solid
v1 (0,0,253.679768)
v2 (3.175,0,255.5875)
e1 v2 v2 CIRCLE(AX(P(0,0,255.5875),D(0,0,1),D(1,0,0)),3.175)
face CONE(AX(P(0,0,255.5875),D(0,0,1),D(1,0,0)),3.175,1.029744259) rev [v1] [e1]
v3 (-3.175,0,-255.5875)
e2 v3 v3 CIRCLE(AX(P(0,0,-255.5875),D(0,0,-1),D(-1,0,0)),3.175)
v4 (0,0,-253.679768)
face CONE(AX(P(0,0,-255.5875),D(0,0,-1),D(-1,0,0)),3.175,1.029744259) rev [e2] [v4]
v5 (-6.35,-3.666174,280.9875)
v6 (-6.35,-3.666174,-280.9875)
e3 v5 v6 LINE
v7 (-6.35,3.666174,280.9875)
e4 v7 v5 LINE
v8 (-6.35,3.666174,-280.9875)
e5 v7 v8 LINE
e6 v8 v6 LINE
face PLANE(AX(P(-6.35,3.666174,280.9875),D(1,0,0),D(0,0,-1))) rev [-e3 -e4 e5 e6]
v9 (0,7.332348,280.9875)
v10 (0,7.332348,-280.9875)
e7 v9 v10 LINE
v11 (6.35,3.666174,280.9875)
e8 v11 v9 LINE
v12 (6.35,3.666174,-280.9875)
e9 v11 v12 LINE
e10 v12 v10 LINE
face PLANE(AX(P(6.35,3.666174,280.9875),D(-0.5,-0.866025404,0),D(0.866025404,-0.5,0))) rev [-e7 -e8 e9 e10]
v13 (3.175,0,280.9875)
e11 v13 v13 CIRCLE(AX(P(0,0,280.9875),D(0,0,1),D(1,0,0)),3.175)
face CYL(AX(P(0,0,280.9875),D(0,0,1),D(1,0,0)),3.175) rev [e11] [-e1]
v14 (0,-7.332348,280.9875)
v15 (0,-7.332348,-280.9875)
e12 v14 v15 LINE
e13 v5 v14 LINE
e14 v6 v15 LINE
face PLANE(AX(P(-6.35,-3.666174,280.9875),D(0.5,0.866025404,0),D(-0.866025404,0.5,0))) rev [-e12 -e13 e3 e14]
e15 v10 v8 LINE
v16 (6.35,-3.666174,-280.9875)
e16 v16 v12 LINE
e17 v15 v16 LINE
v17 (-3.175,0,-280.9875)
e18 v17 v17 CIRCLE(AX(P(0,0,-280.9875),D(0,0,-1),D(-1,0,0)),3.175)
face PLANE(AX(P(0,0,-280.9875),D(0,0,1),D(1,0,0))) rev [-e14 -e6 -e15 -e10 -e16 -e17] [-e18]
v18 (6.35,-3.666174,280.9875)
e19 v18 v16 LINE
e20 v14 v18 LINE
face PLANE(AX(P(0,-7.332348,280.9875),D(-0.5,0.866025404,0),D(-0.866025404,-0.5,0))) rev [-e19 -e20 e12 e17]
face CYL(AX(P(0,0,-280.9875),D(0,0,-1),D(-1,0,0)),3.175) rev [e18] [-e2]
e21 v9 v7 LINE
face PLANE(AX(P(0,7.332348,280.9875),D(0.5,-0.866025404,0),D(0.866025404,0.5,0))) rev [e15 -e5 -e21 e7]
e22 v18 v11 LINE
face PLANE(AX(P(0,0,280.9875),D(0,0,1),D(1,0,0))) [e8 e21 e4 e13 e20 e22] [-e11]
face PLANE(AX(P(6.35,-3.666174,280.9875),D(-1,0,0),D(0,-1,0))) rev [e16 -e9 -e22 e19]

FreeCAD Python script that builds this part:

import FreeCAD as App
import Part
import Sketcher
from FreeCAD import Vector
Q = App.Units.Quantity

doc = App.newDocument("Part")
body = doc.addObject("PartDesign::Body", "Body")

sketch1 = body.newObject("Sketcher::SketchObject", "Sketch")
sketch1.AttachmentSupport = (doc.getObject("XY_Plane"), [""])
sketch1.MapMode = "FlatFace"
sketch1.addGeometry(Part.LineSegment(Vector(-6.35, -3.666174, 0), Vector(0, -7.332348, 0)), False)
sketch1.addGeometry(Part.LineSegment(Vector(0, -7.332348, 0), Vector(6.35, -3.666174, 0)), False)
sketch1.addGeometry(Part.LineSegment(Vector(6.35, -3.666174, 0), Vector(6.35, 3.666174, 0)), False)
sketch1.addGeometry(Part.LineSegment(Vector(6.35, 3.666174, 0), Vector(0, 7.332348, 0)), False)
sketch1.addGeometry(Part.LineSegment(Vector(0, 7.332348, 0), Vector(-6.35, 3.666174, 0)), False)
sketch1.addGeometry(Part.LineSegment(Vector(-6.35, 3.666174, 0), Vector(-6.35, -3.666174, 0)), False)
sketch1.addConstraint(Sketcher.Constraint("Coincident", 0, 2, 1, 1))
sketch1.addConstraint(Sketcher.Constraint("Coincident", 1, 2, 2, 1))
sketch1.addConstraint(Sketcher.Constraint("Coincident", 2, 2, 3, 1))
sketch1.addConstraint(Sketcher.Constraint("Coincident", 3, 2, 4, 1))
sketch1.addConstraint(Sketcher.Constraint("Coincident", 4, 2, 5, 1))
sketch1.addConstraint(Sketcher.Constraint("Coincident", 5, 2, 0, 1))
sketch1.addConstraint(Sketcher.Constraint("Vertical", 2))
sketch1.addConstraint(Sketcher.Constraint("Vertical", 5))
sketch1.addConstraint(Sketcher.Constraint("Symmetric", 0, 2, 3, 2, -1, 1))
sketch1.addConstraint(Sketcher.Constraint("Symmetric", 1, 2, 4, 2, -1, 1))
sketch1.addConstraint(Sketcher.Constraint("PointOnObject", 0, 2, -2))
sketch1.addConstraint(Sketcher.Constraint("Parallel", 0, 3))
sketch1.addConstraint(Sketcher.Constraint("Horizontal", 2, 2, 4, 2))
sketch1.addConstraint(Sketcher.Constraint("Angle", 0, Q("-30 deg")))
sketch1.addConstraint(Sketcher.Constraint("DistanceX", 4, 2, 2, 2, Q("0.5 in")))
sketch1.addConstraint(Sketcher.Constraint("DistanceY", 2, 1, 2, 2, 7.332348))
pad1 = body.newObject("PartDesign::Pad", "Pad")
pad1.Profile = sketch1
pad1.Type = "TwoLengths"
pad1.Length = Q("11.0625 in")
pad1.Length2 = Q("11.0625 in")

sketch2 = body.newObject("Sketcher::SketchObject", "Sketch001")
sketch2.AttachmentSupport = (doc.getObject("XY_Plane"), [""])
sketch2.MapMode = "FlatFace"
sketch2.AttachmentOffset = App.Placement(Vector(0, 0, 11.0625 * 25.4), App.Rotation())
sketch2.addGeometry(Part.Circle(Vector(0, 0, 0), Vector(0, 0, 1), 3.175), False)
sketch2.addConstraint(Sketcher.Constraint("Coincident", 0, 3, -1, 1))
sketch2.addConstraint(Sketcher.Constraint("Diameter", 0, Q("0.25 in")))
doc.recompute()
hole = body.newObject("PartDesign::Hole", "Hole")
hole.Profile = sketch2
hole.ThreadType = "None"
hole.Diameter = Q("0.25 in")
hole.DepthType = "Dimension"
hole.Depth = Q("1 in")
hole.DrillPoint = "Angled"
hole.DrillPointAngle = 118

sketch3 = body.newObject("Sketcher::SketchObject", "Sketch002")
sketch3.AttachmentSupport = (doc.getObject("XY_Plane"), [""])
sketch3.MapMode = "FlatFace"
sketch3.AttachmentOffset = App.Placement(Vector(0, 0, -11.0625 * 25.4), App.Rotation())
sketch3.addGeometry(Part.Circle(Vector(0, 0, 0), Vector(0, 0, 1), 3.175), False)
sketch3.addConstraint(Sketcher.Constraint("Coincident", 0, 3, -1, 1))
sketch3.addConstraint(Sketcher.Constraint("Diameter", 0, Q("0.25 in")))
doc.recompute()
hole2 = body.newObject("PartDesign::Hole", "Hole001")
hole2.Profile = sketch3
hole2.ThreadType = "None"
hole2.Diameter = Q("0.25 in")
hole2.DepthType = "Dimension"
hole2.Depth = Q("1 in")
hole2.DrillPoint = "Angled"
hole2.DrillPointAngle = 118
hole2.Reversed = True

doc.recompute()
